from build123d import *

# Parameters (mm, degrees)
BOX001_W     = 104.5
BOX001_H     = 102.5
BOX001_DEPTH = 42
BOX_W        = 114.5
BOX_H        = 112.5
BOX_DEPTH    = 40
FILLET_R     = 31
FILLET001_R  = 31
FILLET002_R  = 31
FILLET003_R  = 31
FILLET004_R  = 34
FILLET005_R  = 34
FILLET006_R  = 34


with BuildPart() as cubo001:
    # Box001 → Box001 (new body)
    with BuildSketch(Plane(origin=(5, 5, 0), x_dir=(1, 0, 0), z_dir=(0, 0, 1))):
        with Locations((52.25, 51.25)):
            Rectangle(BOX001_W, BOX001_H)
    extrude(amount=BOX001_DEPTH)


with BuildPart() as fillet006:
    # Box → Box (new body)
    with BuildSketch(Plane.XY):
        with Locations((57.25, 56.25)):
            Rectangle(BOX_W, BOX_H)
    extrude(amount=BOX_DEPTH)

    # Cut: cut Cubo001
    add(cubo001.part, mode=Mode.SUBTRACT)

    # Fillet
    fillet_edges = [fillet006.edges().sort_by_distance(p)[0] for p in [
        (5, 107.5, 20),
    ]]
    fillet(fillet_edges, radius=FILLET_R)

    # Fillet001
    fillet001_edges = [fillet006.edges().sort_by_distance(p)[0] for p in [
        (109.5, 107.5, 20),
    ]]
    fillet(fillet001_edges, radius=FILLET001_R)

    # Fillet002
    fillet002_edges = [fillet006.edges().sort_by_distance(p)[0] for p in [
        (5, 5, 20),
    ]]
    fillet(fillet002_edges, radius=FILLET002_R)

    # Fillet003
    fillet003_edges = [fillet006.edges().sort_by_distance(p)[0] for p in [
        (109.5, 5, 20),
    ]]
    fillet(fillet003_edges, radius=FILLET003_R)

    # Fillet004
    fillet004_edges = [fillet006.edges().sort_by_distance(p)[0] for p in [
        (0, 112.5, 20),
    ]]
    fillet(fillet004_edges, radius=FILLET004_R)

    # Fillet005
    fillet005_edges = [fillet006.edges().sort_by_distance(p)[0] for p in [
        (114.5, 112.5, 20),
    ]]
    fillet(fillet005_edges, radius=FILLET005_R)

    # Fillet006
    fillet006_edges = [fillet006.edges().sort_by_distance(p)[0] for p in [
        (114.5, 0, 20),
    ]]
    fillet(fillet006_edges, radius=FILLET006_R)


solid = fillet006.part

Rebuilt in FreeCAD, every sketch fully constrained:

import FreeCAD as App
import Part
import Sketcher
from FreeCAD import Vector


def edges_at(feature, points):
    """Names of the edges that pass closest to the given points."""
    edges = feature.Shape.Edges
    near = lambda p: min(range(len(edges)), key=lambda i: edges[i].distToShape(Part.Vertex(*p))[0])
    return sorted({f"Edge{near(p) + 1}" for p in points})


def add_polygon(sketch, points):
    """Adds a closed chain of lines whose ends are joined by coincident constraints."""
    first, n = sketch.GeometryCount, len(points)
    for a, b in zip(points, points[1:] + points[:1]):
        sketch.addGeometry(Part.LineSegment(App.Vector(*a, 0), App.Vector(*b, 0)), False)
    for i in range(n):
        sketch.addConstraint(Sketcher.Constraint("Coincident", first + i, 2, first + (i + 1) % n, 1))

doc = App.newDocument("Part")
params = doc.addObject("Spreadsheet::Sheet", "Params")
for row, (alias, value) in enumerate([
    ("sketch1_width", "104.5 mm"),
    ("sketch1_height", "102.5 mm"),
    ("pad1_length", "42 mm"),
    ("sketch2_width", "114.5 mm"),
    ("sketch2_height", "112.5 mm"),
    ("pad2_length", "40 mm"),
    ("fillet_radius", "31 mm"),
    ("fillet2_radius", "31 mm"),
    ("fillet3_radius", "31 mm"),
    ("fillet4_radius", "31 mm"),
    ("fillet5_radius", "34 mm"),
    ("fillet6_radius", "34 mm"),
    ("fillet7_radius", "34 mm"),
], start=1):
    params.set(f"A{row}", alias)
    params.set(f"B{row}", "=" + value)
    params.setAlias(f"B{row}", alias)

body = doc.addObject("PartDesign::Body", "Body")

sketch1 = body.newObject("Sketcher::SketchObject", "Sketch")
sketch1.AttachmentSupport = (doc.getObject("XY_Plane"), [""])
sketch1.MapMode = "FlatFace"
add_polygon(sketch1, [(5, 108), (5, 5), (110, 5), (110, 108)])
sketch1.addConstraint(Sketcher.Constraint("Vertical", 0))
sketch1.addConstraint(Sketcher.Constraint("Horizontal", 1))
sketch1.addConstraint(Sketcher.Constraint("Vertical", 2))
sketch1.addConstraint(Sketcher.Constraint("Horizontal", 3))
sketch1.addConstraint(Sketcher.Constraint("DistanceX", 1, 1, 1, 2, 104.5))
sketch1.addConstraint(Sketcher.Constraint("DistanceY", 0, 2, 0, 1, 102.5))
sketch1.addConstraint(Sketcher.Constraint("DistanceX", -1, 1, 0, 2, 5.0))
sketch1.addConstraint(Sketcher.Constraint("DistanceY", -1, 1, 0, 2, 5.0))
sketch1.setExpression("Constraints[8]", "Params.sketch1_width")
sketch1.setExpression("Constraints[9]", "Params.sketch1_height")
pad1 = body.newObject("PartDesign::Pad", "Pad")
pad1.Profile = sketch1
pad1.setExpression("Length", "Params.pad1_length")
body2 = doc.addObject("PartDesign::Body", "Body001")

sketch2 = body2.newObject("Sketcher::SketchObject", "Sketch001")
sketch2.AttachmentSupport = (doc.getObject("XY_Plane001"), [""])
sketch2.MapMode = "FlatFace"
add_polygon(sketch2, [(0, 112), (0, 0), (114, 0), (114, 112)])
sketch2.addConstraint(Sketcher.Constraint("Vertical", 0))
sketch2.addConstraint(Sketcher.Constraint("Horizontal", 1))
sketch2.addConstraint(Sketcher.Constraint("Vertical", 2))
sketch2.addConstraint(Sketcher.Constraint("Horizontal", 3))
sketch2.addConstraint(Sketcher.Constraint("Coincident", 0, 2, -1, 1))
sketch2.addConstraint(Sketcher.Constraint("DistanceX", 1, 1, 1, 2, 114.5))
sketch2.addConstraint(Sketcher.Constraint("DistanceY", 0, 2, 0, 1, 112.5))
sketch2.setExpression("Constraints[9]", "Params.sketch2_width")
sketch2.setExpression("Constraints[10]", "Params.sketch2_height")
pad2 = body2.newObject("PartDesign::Pad", "Pad001")
pad2.Profile = sketch2
pad2.setExpression("Length", "Params.pad2_length")
doc.recompute()

boolean = body2.newObject("PartDesign::Boolean", "Boolean")
boolean.Type = "Cut"
boolean.addObjects([body])
doc.recompute()

fillet = body2.newObject("PartDesign::Fillet", "Fillet")
fillet.Base = (boolean, edges_at(boolean, [(5, 107.5, 20)]))
fillet.setExpression("Radius", "Params.fillet_radius")
doc.recompute()

fillet2 = body2.newObject("PartDesign::Fillet", "Fillet001")
fillet2.Base = (fillet, edges_at(fillet, [(109.5, 107.5, 20)]))
fillet2.setExpression("Radius", "Params.fillet2_radius")
doc.recompute()

fillet3 = body2.newObject("PartDesign::Fillet", "Fillet002")
fillet3.Base = (fillet2, edges_at(fillet2, [(5, 5, 20)]))
fillet3.setExpression("Radius", "Params.fillet3_radius")
doc.recompute()

fillet4 = body2.newObject("PartDesign::Fillet", "Fillet003")
fillet4.Base = (fillet3, edges_at(fillet3, [(109.5, 5, 20)]))
fillet4.setExpression("Radius", "Params.fillet4_radius")
doc.recompute()

fillet5 = body2.newObject("PartDesign::Fillet", "Fillet004")
fillet5.Base = (fillet4, edges_at(fillet4, [(0, 112.5, 20)]))
fillet5.setExpression("Radius", "Params.fillet5_radius")
doc.recompute()

fillet6 = body2.newObject("PartDesign::Fillet", "Fillet005")
fillet6.Base = (fillet5, edges_at(fillet5, [(114.5, 112.5, 20)]))
fillet6.setExpression("Radius", "Params.fillet6_radius")
doc.recompute()

fillet7 = body2.newObject("PartDesign::Fillet", "Fillet006")
fillet7.Base = (fillet6, edges_at(fillet6, [(114.5, 0, 20)]))
fillet7.setExpression("Radius", "Params.fillet7_radius")

doc.recompute()
